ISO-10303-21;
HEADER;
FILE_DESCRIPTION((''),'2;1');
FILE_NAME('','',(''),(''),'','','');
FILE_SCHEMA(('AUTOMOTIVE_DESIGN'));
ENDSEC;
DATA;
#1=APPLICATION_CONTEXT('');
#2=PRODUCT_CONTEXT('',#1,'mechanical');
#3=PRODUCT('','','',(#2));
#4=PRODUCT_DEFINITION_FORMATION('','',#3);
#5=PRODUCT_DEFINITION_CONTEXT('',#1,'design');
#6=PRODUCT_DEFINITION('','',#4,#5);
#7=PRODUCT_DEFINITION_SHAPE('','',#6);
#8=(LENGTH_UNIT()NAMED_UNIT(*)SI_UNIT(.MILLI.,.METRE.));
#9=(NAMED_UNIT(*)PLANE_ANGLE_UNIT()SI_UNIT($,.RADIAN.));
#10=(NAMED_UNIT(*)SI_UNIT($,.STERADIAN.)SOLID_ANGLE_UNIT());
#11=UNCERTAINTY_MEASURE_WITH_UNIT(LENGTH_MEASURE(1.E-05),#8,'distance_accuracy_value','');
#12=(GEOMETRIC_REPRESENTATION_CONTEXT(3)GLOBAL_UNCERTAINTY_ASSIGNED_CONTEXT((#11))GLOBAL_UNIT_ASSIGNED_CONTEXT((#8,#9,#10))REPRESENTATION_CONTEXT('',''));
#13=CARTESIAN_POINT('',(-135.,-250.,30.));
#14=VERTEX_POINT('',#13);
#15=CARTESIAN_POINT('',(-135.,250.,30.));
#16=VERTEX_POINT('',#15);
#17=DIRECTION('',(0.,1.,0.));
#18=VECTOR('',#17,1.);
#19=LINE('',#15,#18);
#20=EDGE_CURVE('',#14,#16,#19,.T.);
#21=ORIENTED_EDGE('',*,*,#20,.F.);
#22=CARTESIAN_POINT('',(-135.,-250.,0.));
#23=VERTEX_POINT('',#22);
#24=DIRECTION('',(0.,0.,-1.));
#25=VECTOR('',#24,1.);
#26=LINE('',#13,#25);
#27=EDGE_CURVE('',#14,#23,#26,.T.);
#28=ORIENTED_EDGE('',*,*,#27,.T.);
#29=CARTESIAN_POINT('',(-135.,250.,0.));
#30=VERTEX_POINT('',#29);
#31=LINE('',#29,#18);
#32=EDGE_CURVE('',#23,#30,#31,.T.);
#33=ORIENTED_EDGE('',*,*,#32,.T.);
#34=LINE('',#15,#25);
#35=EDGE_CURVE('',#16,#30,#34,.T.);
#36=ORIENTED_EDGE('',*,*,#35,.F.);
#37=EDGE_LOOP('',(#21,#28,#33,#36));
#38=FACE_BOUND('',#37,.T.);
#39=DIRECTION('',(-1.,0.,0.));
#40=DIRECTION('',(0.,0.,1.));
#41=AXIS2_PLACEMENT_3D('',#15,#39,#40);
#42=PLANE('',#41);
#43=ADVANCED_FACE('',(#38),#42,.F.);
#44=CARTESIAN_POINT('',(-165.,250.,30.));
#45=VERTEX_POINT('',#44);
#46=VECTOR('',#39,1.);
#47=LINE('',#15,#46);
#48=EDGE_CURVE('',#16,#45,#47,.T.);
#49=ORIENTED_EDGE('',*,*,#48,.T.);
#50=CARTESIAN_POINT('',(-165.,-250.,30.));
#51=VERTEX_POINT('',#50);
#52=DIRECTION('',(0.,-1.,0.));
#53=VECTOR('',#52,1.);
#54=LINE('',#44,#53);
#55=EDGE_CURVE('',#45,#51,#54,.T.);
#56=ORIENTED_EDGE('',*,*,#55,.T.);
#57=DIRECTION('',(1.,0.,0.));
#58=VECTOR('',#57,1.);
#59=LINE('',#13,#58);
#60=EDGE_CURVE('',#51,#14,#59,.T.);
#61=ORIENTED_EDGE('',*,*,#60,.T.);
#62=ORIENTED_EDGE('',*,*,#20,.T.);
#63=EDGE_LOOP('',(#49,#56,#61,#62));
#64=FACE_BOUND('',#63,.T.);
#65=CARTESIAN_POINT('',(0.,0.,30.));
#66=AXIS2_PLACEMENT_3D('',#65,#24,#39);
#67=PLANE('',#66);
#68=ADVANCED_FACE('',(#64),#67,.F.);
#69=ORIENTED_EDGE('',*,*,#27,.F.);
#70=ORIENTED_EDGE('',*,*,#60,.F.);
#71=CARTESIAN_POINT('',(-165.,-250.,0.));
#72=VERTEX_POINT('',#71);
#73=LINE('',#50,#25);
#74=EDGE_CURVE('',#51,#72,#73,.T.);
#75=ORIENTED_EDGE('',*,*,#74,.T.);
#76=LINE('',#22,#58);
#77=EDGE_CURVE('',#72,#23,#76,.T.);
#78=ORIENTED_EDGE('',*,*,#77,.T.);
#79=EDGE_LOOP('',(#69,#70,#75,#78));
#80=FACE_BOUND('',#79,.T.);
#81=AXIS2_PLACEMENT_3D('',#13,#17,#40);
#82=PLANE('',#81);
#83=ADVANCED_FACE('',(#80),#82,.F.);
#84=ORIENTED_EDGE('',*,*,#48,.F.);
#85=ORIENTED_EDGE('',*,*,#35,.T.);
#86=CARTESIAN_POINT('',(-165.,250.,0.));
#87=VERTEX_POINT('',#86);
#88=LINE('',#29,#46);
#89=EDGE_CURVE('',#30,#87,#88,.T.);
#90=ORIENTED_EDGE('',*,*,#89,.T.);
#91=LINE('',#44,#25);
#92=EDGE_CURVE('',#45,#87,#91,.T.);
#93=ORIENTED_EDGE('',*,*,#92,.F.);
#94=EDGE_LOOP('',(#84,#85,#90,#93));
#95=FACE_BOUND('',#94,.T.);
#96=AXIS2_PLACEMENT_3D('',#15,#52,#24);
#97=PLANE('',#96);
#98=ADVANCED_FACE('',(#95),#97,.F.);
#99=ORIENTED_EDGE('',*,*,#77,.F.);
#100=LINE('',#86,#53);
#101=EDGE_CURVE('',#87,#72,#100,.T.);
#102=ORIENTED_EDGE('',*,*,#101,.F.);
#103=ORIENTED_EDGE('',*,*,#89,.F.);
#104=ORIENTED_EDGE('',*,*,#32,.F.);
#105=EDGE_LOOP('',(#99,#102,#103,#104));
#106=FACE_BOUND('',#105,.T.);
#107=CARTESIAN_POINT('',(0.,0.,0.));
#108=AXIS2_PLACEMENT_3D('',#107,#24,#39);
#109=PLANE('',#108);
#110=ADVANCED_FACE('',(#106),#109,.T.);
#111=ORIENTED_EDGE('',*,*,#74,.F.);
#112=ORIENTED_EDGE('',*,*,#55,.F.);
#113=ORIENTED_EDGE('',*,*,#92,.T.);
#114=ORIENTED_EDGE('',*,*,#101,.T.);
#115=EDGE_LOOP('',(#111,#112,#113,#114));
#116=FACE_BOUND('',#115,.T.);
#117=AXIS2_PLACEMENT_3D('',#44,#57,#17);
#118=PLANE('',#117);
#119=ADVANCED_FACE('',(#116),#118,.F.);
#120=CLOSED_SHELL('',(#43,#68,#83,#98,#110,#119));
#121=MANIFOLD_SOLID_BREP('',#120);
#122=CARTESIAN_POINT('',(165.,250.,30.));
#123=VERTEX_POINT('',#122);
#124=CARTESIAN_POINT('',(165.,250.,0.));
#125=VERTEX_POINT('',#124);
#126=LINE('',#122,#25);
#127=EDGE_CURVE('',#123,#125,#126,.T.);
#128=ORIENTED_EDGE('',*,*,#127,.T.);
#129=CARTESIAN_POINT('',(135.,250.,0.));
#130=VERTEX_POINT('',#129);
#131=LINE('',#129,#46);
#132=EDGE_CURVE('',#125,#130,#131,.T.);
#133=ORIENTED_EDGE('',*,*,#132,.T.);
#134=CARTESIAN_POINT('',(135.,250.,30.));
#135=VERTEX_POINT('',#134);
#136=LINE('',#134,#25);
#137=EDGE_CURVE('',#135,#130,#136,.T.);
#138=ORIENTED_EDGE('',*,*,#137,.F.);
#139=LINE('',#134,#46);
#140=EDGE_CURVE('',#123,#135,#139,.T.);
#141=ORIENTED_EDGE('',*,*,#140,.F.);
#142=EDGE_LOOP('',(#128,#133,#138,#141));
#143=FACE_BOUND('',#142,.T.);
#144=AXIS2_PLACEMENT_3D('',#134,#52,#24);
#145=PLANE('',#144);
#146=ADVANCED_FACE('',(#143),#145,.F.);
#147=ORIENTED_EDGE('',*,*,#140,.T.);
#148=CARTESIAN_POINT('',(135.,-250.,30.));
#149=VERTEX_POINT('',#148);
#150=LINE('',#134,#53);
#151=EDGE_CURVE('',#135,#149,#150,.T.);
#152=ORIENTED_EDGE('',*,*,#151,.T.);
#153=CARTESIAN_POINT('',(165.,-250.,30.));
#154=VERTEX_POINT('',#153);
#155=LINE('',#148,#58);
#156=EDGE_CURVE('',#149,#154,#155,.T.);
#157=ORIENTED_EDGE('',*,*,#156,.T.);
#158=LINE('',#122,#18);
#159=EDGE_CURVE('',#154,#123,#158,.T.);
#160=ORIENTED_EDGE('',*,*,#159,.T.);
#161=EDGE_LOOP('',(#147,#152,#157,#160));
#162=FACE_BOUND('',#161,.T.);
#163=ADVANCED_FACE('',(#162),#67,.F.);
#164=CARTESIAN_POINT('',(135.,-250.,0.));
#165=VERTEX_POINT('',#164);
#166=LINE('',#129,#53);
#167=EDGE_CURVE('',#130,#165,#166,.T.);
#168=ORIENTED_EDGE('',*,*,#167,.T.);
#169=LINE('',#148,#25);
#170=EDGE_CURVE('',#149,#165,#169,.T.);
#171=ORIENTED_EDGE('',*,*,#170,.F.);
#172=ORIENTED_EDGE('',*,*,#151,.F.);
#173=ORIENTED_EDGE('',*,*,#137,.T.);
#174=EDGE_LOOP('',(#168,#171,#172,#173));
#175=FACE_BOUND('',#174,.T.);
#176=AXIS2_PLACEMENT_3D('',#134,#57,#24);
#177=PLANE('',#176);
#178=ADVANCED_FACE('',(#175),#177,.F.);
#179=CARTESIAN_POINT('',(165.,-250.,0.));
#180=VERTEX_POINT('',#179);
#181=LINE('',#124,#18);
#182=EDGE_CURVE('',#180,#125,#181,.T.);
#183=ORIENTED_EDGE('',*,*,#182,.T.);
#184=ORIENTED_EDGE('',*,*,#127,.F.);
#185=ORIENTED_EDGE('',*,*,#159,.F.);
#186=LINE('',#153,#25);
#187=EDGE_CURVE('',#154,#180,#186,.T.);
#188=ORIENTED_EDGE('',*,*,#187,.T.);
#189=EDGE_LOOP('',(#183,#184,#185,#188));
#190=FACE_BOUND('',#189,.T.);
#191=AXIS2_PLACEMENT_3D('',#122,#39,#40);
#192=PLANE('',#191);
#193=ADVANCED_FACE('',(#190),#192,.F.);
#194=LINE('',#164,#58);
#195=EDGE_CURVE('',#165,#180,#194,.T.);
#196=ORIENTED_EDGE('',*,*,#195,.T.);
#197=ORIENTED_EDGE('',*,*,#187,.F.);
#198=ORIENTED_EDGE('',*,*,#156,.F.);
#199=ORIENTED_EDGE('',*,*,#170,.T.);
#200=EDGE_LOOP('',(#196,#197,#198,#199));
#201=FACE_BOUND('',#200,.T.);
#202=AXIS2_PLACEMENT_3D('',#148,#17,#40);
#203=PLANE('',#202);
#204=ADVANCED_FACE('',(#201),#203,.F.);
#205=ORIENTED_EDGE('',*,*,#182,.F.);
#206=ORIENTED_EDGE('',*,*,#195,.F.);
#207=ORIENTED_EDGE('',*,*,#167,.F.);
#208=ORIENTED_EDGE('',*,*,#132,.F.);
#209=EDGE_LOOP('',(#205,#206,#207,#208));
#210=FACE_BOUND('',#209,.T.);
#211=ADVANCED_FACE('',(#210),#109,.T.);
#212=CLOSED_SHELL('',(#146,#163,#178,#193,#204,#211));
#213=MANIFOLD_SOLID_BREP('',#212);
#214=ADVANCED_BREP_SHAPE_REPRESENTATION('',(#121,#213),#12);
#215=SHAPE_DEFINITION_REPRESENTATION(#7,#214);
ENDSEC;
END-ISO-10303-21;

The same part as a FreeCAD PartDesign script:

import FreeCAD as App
import Part
import Sketcher
Q = App.Units.Quantity


def add_polygon(sketch, points):
    """Adds a closed chain of lines whose ends are joined by coincident constraints."""
    first, n = sketch.GeometryCount, len(points)
    for a, b in zip(points, points[1:] + points[:1]):
        sketch.addGeometry(Part.LineSegment(App.Vector(*a, 0), App.Vector(*b, 0)), False)
    for i in range(n):
        sketch.addConstraint(Sketcher.Constraint("Coincident", first + i, 2, first + (i + 1) % n, 1))

doc = App.newDocument("Part")
params = doc.addObject("Spreadsheet::Sheet", "Params")
for row, (alias, value) in enumerate([
    ("sketch1_width", "30 mm"),
    ("sketch1_height", "500 mm"),
    ("pad1_length", "30 mm"),
    ("sketch2_width", "30 mm"),
    ("sketch2_height", "500 mm"),
    ("pad2_length", "30 mm"),
], start=1):
    params.set(f"A{row}", alias)
    params.set(f"B{row}", "=" + value)
    params.setAlias(f"B{row}", alias)

body = doc.addObject("PartDesign::Body", "Body")

# Sketch on XY plane
sketch1 = body.newObject("Sketcher::SketchObject", "Sketch")
sketch1.AttachmentSupport = (doc.getObject("XY_Plane"), [""])
sketch1.MapMode = "FlatFace"
add_polygon(sketch1, [(-165, 250), (-165, -250), (-135, -250), (-135, 250)])  # lines 0-3
sketch1.addConstraint([
    Sketcher.Constraint("Vertical", 0),
    Sketcher.Constraint("Horizontal", 1),
    Sketcher.Constraint("Vertical", 2),
    Sketcher.Constraint("Horizontal", 3),
    Sketcher.Constraint("DistanceX", 1, 1, 1, 2, Q("30 mm")),
    Sketcher.Constraint("DistanceY", 0, 2, 0, 1, Q("500 mm")),
    Sketcher.Constraint("DistanceX", 0, 2, -1, 1, Q("165 mm")),
    Sketcher.Constraint("DistanceY", 0, 2, -1, 1, Q("250 mm")),
])
sketch1.setExpression("Constraints[8]", "Params.sketch1_width")
sketch1.setExpression("Constraints[9]", "Params.sketch1_height")
pad1 = body.newObject("PartDesign::Pad", "Pad")
pad1.Profile = sketch1
pad1.setExpression("Length", "Params.pad1_length")
body2 = doc.addObject("PartDesign::Body", "Body001")

# Sketch on XY plane
sketch2 = body2.newObject("Sketcher::SketchObject", "Sketch001")
sketch2.AttachmentSupport = (doc.getObject("XY_Plane001"), [""])
sketch2.MapMode = "FlatFace"
add_polygon(sketch2, [(135, 250), (135, -250), (165, -250), (165, 250)])  # lines 0-3
sketch2.addConstraint([
    Sketcher.Constraint("Vertical", 0),
    Sketcher.Constraint("Horizontal", 1),
    Sketcher.Constraint("Vertical", 2),
    Sketcher.Constraint("Horizontal", 3),
    Sketcher.Constraint("DistanceX", 1, 1, 1, 2, Q("30 mm")),
    Sketcher.Constraint("DistanceY", 0, 2, 0, 1, Q("500 mm")),
    Sketcher.Constraint("DistanceX", -1, 1, 0, 2, Q("135 mm")),
    Sketcher.Constraint("DistanceY", 0, 2, -1, 1, Q("250 mm")),
])
sketch2.setExpression("Constraints[8]", "Params.sketch2_width")
sketch2.setExpression("Constraints[9]", "Params.sketch2_height")
pad2 = body2.newObject("PartDesign::Pad", "Pad001")
pad2.Profile = sketch2
pad2.setExpression("Length", "Params.pad2_length")

doc.recompute()
